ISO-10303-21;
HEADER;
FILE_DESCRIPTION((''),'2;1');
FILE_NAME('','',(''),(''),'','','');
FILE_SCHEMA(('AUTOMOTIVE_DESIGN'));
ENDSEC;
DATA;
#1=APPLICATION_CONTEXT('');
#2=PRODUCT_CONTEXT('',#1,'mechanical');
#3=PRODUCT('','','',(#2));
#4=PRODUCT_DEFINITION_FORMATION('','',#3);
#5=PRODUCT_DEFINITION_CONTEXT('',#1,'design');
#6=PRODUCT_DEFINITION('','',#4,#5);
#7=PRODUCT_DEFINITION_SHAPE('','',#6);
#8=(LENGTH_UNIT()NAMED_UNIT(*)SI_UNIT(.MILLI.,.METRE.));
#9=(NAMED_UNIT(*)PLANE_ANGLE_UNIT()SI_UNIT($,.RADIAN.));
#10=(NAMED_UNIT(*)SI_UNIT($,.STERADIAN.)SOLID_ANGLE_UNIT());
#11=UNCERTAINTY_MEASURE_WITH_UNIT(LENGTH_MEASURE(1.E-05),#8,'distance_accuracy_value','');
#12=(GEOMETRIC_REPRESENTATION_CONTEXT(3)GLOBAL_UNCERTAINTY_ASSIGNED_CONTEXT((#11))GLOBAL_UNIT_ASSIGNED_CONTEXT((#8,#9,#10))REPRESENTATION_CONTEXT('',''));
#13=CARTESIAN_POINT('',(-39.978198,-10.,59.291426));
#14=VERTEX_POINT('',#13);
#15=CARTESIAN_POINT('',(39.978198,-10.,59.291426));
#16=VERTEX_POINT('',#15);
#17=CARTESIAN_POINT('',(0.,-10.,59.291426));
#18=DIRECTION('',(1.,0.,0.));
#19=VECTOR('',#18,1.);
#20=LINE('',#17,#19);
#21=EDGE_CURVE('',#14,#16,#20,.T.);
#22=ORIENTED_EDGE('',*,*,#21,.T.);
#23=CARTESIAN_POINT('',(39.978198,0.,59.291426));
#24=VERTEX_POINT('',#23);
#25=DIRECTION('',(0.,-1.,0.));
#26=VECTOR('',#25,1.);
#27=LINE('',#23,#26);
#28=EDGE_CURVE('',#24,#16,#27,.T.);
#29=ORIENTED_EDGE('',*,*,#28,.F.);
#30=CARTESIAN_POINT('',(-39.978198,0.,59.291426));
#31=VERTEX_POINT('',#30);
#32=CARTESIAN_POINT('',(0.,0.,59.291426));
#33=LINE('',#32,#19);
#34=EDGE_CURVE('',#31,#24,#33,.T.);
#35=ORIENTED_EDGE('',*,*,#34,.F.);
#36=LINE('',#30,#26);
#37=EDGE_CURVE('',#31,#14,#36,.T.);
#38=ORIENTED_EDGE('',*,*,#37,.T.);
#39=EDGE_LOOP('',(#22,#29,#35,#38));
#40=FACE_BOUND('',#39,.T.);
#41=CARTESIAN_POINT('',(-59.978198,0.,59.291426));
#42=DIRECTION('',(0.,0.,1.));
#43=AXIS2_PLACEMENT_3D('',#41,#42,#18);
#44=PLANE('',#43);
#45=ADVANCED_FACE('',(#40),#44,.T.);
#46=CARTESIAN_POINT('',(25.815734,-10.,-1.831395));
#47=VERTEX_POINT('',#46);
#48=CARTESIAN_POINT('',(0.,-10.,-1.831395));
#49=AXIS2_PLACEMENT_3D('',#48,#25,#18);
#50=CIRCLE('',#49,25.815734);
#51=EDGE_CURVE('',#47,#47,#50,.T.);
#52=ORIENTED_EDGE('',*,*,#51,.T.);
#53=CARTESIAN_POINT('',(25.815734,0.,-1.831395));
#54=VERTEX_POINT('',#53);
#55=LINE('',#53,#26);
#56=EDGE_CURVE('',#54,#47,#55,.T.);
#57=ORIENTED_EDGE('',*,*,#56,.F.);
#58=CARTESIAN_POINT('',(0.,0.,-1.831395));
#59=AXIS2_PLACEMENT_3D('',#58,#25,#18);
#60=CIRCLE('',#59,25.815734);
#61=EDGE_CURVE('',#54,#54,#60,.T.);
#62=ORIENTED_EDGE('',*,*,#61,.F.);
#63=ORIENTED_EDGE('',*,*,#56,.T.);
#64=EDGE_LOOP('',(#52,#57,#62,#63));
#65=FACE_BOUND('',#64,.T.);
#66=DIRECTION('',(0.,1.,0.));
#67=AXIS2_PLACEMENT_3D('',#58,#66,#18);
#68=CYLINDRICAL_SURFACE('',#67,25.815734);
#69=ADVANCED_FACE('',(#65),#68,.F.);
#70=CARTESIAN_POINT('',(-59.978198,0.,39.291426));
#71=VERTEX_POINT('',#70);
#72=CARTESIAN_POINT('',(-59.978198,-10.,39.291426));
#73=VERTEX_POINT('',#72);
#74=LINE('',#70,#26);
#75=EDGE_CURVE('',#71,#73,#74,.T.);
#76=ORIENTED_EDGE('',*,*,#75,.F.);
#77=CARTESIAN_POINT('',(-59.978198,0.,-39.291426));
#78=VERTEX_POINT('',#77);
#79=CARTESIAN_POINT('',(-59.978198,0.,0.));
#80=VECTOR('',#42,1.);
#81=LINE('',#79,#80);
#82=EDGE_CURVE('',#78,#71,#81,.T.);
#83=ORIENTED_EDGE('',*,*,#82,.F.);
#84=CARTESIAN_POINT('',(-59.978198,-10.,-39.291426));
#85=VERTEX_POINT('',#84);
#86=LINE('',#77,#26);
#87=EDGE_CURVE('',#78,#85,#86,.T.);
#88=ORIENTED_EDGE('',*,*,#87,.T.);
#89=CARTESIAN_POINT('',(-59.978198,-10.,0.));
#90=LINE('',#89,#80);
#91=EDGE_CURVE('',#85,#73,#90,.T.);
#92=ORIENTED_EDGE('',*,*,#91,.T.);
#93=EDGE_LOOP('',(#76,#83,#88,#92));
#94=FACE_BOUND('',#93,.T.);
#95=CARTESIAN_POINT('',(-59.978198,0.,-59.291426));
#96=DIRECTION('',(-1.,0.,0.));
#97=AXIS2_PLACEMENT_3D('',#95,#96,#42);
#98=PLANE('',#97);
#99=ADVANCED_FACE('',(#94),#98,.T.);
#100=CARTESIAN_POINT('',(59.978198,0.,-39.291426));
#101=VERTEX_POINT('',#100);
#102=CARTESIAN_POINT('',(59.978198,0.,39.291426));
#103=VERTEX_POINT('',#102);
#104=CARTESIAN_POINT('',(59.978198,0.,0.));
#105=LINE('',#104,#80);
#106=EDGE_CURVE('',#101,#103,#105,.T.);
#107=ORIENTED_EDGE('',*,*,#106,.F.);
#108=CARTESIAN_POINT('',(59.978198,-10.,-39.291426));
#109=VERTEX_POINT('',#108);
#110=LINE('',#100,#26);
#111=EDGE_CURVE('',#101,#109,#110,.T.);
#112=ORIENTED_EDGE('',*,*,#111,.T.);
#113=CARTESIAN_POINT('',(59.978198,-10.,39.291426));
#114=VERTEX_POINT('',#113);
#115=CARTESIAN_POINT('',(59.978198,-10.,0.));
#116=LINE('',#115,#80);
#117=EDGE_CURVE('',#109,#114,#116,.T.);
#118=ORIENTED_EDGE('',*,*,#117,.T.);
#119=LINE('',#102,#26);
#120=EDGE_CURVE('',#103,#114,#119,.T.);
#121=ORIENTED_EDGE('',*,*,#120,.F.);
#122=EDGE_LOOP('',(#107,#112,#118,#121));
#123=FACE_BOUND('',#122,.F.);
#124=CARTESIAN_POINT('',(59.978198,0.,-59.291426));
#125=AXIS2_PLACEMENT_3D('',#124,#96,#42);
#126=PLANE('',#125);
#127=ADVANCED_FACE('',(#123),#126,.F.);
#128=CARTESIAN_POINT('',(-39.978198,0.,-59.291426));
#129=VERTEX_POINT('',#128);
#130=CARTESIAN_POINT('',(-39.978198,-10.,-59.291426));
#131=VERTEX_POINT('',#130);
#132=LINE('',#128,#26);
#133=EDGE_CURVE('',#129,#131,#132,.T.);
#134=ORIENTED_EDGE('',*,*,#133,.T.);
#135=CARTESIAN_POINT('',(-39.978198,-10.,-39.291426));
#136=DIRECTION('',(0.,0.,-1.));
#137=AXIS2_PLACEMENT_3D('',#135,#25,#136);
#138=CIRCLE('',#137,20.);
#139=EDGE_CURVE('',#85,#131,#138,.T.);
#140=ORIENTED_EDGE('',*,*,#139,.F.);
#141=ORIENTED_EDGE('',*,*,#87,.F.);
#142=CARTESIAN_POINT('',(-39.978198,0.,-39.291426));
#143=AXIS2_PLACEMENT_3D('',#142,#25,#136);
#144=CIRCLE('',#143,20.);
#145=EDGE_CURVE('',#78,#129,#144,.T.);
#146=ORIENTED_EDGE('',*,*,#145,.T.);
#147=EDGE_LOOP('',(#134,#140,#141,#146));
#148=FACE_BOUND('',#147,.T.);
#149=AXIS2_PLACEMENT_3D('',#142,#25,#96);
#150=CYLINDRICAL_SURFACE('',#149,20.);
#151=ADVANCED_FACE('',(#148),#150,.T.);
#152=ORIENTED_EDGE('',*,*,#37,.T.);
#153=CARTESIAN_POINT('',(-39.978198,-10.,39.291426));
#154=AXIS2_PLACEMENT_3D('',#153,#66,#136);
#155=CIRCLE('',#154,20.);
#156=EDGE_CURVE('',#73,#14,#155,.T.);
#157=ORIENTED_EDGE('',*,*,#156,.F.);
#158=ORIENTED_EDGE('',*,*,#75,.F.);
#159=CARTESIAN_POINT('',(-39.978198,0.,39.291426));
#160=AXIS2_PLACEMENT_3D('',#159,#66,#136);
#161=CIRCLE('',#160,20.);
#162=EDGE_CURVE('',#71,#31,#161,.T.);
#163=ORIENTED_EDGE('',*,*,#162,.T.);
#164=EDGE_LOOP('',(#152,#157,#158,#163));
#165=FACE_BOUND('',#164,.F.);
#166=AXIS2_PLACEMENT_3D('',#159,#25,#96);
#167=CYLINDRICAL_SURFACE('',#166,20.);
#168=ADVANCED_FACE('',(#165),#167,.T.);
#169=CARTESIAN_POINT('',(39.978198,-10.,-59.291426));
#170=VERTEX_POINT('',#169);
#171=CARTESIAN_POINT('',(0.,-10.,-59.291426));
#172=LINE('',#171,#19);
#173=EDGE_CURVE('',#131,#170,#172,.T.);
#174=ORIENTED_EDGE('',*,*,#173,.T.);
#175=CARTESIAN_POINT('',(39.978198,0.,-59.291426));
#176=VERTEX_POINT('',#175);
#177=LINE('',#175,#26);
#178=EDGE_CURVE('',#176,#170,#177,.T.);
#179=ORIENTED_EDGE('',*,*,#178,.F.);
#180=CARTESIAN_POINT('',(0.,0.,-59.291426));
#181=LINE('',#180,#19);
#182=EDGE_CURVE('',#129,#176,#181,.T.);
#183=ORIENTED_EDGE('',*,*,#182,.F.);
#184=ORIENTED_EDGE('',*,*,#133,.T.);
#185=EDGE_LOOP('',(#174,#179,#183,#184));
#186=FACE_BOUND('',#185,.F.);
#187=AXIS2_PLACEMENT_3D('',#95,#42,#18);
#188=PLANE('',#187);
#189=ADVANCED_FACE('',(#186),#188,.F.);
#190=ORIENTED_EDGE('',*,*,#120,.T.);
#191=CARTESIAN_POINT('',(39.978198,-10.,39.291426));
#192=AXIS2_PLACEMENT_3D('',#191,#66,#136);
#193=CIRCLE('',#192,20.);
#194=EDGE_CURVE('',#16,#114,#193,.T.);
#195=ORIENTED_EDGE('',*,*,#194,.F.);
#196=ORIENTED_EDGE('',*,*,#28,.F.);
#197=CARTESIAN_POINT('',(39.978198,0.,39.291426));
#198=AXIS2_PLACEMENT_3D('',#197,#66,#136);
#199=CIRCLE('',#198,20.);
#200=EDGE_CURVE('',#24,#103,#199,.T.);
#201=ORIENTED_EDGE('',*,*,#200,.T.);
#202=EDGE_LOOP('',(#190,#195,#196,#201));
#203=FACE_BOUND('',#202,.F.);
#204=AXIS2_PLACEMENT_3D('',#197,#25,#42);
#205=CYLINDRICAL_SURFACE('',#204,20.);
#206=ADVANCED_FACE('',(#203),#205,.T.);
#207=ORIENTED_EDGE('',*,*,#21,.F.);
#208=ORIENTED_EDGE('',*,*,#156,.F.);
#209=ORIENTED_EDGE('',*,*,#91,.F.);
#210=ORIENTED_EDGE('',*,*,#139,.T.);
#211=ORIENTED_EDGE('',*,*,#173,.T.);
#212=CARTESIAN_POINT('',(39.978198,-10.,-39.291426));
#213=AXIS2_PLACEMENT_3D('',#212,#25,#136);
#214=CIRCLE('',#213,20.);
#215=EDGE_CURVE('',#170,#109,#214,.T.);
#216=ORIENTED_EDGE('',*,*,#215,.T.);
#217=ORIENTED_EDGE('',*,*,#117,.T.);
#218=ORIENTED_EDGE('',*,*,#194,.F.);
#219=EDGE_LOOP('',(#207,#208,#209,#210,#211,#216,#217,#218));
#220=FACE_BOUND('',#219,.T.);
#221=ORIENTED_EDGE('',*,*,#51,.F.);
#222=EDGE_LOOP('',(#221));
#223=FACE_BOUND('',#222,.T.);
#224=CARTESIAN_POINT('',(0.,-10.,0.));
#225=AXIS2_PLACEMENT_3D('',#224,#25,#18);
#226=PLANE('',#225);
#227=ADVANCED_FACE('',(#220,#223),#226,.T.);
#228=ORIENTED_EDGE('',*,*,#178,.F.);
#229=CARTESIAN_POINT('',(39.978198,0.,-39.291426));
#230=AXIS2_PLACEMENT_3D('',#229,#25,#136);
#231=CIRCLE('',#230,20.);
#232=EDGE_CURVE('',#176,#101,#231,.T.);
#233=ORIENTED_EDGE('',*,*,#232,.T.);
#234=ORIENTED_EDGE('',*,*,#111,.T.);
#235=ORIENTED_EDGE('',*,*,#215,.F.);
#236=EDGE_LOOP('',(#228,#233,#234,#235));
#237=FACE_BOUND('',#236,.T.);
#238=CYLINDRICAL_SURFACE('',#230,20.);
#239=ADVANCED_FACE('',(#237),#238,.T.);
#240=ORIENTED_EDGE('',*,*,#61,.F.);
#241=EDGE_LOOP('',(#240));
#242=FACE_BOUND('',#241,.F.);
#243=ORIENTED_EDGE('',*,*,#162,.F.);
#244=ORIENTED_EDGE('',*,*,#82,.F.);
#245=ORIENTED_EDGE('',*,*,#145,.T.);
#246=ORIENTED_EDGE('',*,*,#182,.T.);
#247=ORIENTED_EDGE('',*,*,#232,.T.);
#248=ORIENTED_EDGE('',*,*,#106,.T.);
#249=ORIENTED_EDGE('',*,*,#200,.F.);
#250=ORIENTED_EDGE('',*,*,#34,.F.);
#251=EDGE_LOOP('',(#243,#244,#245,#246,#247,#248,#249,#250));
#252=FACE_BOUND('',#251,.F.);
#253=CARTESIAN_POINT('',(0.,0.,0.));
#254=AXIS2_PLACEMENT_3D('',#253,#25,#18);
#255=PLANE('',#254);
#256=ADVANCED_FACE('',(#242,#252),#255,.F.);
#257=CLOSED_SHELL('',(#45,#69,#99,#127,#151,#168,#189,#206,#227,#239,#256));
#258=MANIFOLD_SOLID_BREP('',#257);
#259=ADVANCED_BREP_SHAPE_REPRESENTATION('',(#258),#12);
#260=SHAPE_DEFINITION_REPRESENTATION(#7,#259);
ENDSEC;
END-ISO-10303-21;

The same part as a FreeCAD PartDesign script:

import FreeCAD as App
import Part
import Sketcher

V = App.Vector
Q = App.Units.Quantity


def edges_at(feature, points):
    """Names of the edges that pass closest to the given points."""
    edges = feature.Shape.Edges
    near = lambda p: min(range(len(edges)), key=lambda i: edges[i].distToShape(Part.Vertex(*p))[0])
    return sorted({f"Edge{near(p) + 1}" for p in points})


def add_polygon(sketch, points):
    """Adds a closed chain of lines whose ends are joined by coincident constraints."""
    first, n = sketch.GeometryCount, len(points)
    for a, b in zip(points, points[1:] + points[:1]):
        sketch.addGeometry(Part.LineSegment(App.Vector(*a, 0), App.Vector(*b, 0)), False)
    for i in range(n):
        sketch.addConstraint(Sketcher.Constraint("Coincident", first + i, 2, first + (i + 1) % n, 1))

doc = App.newDocument("Part")
body = doc.addObject("PartDesign::Body", "Body")

# Sketch on XZ plane
sketch1 = body.newObject("Sketcher::SketchObject", "Sketch")
sketch1.AttachmentSupport = (doc.getObject("XZ_Plane"), [""])
sketch1.MapMode = "FlatFace"
add_polygon(sketch1, [(-60, 59), (-60, -59), (60, -59), (60, 59)])  # lines 0-3
sketch1.addGeometry(Part.Circle(V(0, -2, 0), V(0, 0, 1), 26), False)  # 4
sketch1.addConstraint([
    Sketcher.Constraint("Vertical", 0),
    Sketcher.Constraint("Horizontal", 1),
    Sketcher.Constraint("Vertical", 2),
    Sketcher.Constraint("Horizontal", 3),
    Sketcher.Constraint("Symmetric", 0, 2, 2, 2, -1, 1),
    Sketcher.Constraint("PointOnObject", 4, 3, -2),
    Sketcher.Constraint("Diameter", 4, Q("51.631468 mm")),
    Sketcher.Constraint("DistanceX", 1, 1, 1, 2, Q("119.956396 mm")),
    Sketcher.Constraint("DistanceY", 0, 2, 0, 1, Q("118.582852 mm")),
    Sketcher.Constraint("DistanceY", 0, 2, 4, 3, Q("57.460031 mm")),
])
pad1 = body.newObject("PartDesign::Pad", "Pad")
pad1.Profile = sketch1
pad1.Length = 10
doc.recompute()

fillet = body.newObject("PartDesign::Fillet", "Fillet")
fillet.Base = (pad1, edges_at(pad1, [
    (-59.978, -5, 59.291),
    (59.978, -5, 59.291),
    (-59.978, -5, -59.291),
    (59.978, -5, -59.291),
]))
fillet.Radius = 20

doc.recompute()
